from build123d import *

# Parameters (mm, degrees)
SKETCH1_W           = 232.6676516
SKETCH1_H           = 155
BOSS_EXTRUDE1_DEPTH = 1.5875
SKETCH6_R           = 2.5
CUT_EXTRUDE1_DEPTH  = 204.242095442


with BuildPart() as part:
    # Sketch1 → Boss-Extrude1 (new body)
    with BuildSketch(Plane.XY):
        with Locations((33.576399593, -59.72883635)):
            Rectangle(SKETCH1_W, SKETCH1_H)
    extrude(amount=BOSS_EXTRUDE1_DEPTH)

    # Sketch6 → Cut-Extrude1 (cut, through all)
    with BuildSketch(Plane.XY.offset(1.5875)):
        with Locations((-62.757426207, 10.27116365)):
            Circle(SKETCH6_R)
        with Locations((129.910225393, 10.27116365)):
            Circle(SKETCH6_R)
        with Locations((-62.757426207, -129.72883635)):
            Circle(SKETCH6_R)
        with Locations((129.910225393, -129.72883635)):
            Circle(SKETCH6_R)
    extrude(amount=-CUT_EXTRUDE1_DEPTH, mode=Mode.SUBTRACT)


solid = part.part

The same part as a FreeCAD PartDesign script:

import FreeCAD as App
import Part
import Sketcher
from FreeCAD import Vector
Q = App.Units.Quantity


def add_polygon(sketch, points):
    """Adds a closed chain of lines whose ends are joined by coincident constraints."""
    first, n = sketch.GeometryCount, len(points)
    for a, b in zip(points, points[1:] + points[:1]):
        sketch.addGeometry(Part.LineSegment(App.Vector(*a, 0), App.Vector(*b, 0)), False)
    for i in range(n):
        sketch.addConstraint(Sketcher.Constraint("Coincident", first + i, 2, first + (i + 1) % n, 1))

doc = App.newDocument("Part")
body = doc.addObject("PartDesign::Body", "Body")

sketch1 = body.newObject("Sketcher::SketchObject", "Sketch")
sketch1.AttachmentSupport = (doc.getObject("XY_Plane"), [""])
sketch1.MapMode = "FlatFace"
add_polygon(sketch1, [(-83, 18), (-83, -137), (150, -137), (150, 18)])
sketch1.addConstraint([
    Sketcher.Constraint("Vertical", 0),
    Sketcher.Constraint("Horizontal", 1),
    Sketcher.Constraint("Vertical", 2),
    Sketcher.Constraint("Horizontal", 3),
    Sketcher.Constraint("DistanceY", 0, 2, 0, 1, Q("155 mm")),
    Sketcher.Constraint("DistanceX", 1, 1, 1, 2, Q("232.667652 mm")),
    Sketcher.Constraint("DistanceX", 0, 2, -1, 1, Q("82.757426 mm")),
    Sketcher.Constraint("DistanceY", 0, 2, -1, 1, Q("137.228836 mm")),
])
pad1 = body.newObject("PartDesign::Pad", "Pad")
pad1.Profile = sketch1
pad1.Length = 1.5875

sketch2 = body.newObject("Sketcher::SketchObject", "Sketch001")
sketch2.AttachmentSupport = (doc.getObject("XY_Plane"), [""])
sketch2.MapMode = "FlatFace"
sketch2.AttachmentOffset = App.Placement(Vector(0, 0, 1.5875), App.Rotation())
sketch2.addGeometry([
    Part.Circle(Vector(-62.8, 10.3, 0), Vector(0, 0, 1), 2.5),
    Part.Circle(Vector(129.9, 10.3, 0), Vector(0, 0, 1), 2.5),
    Part.Circle(Vector(-62.8, -129.7, 0), Vector(0, 0, 1), 2.5),
    Part.Circle(Vector(129.9, -129.7, 0), Vector(0, 0, 1), 2.5),
], False)
sketch2.addConstraint([
    Sketcher.Constraint("Equal", 0, 1),
    Sketcher.Constraint("Equal", 1, 2),
    Sketcher.Constraint("Equal", 2, 3),
    Sketcher.Constraint("Horizontal", 0, 3, 1, 3),
    Sketcher.Constraint("Horizontal", 2, 3, 3, 3),
    Sketcher.Constraint("Vertical", 0, 3, 2, 3),
    Sketcher.Constraint("Vertical", 1, 3, 3, 3),
    Sketcher.Constraint("Diameter", 0, Q("5 mm")),
    Sketcher.Constraint("DistanceY", 2, 3, 0, 3, Q("140 mm")),
    Sketcher.Constraint("DistanceX", 0, 3, 1, 3, Q("192.667652 mm")),
    Sketcher.Constraint("DistanceX", 0, 3, -1, 1, Q("62.757426 mm")),
    Sketcher.Constraint("DistanceY", -1, 1, 0, 3, Q("10.271164 mm")),
])
pocket1 = body.newObject("PartDesign::Pocket", "Pocket")
pocket1.Profile = sketch2
pocket1.Type = "ThroughAll"

doc.recompute()
